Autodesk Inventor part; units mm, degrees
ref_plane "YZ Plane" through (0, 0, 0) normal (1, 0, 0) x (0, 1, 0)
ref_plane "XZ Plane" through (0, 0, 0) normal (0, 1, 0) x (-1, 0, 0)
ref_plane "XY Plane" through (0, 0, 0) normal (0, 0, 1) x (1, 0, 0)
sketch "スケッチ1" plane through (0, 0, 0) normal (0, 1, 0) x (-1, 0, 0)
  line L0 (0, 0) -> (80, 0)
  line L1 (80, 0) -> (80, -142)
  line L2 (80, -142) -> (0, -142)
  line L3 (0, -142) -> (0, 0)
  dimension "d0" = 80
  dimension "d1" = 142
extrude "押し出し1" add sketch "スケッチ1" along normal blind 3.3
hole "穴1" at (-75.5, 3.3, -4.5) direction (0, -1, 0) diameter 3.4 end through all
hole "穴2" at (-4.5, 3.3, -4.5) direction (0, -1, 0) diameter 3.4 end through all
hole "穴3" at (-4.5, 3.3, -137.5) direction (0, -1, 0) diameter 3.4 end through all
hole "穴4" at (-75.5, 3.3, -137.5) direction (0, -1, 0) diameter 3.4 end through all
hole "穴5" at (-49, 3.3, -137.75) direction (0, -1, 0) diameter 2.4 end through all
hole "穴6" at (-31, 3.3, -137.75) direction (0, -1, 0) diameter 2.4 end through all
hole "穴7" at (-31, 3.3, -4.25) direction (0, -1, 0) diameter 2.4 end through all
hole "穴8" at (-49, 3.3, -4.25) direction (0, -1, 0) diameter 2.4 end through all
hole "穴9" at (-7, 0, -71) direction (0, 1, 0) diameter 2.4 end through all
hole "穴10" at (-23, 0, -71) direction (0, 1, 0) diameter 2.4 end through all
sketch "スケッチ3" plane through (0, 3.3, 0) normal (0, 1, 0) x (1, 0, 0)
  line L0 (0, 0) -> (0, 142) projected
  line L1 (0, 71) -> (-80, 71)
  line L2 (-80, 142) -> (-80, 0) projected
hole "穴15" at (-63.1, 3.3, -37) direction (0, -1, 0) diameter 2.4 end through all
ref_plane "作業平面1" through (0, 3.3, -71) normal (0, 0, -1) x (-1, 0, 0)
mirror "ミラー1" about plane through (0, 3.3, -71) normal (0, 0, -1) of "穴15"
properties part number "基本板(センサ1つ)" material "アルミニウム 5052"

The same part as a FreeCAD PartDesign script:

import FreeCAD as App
import Part
import Sketcher


def add_polygon(sketch, points):
    """Adds a closed chain of lines whose ends are joined by coincident constraints."""
    first, n = sketch.GeometryCount, len(points)
    for a, b in zip(points, points[1:] + points[:1]):
        sketch.addGeometry(Part.LineSegment(App.Vector(*a, 0), App.Vector(*b, 0)), False)
    for i in range(n):
        sketch.addConstraint(Sketcher.Constraint("Coincident", first + i, 2, first + (i + 1) % n, 1))

doc = App.newDocument("Part")
params = doc.addObject("Spreadsheet::Sheet", "Params")
for row, (alias, value) in enumerate([
    ("sketch1_width", "80 mm"),
    ("sketch1_height", "142 mm"),
    ("pad1_length", "3.3 mm"),
    ("sketch2_diameter", "3.4 mm"),
    ("hole_diameter", "3.4 mm"),
    ("sketch3_diameter", "3.4 mm"),
    ("hole2_diameter", "3.4 mm"),
    ("sketch4_diameter", "3.4 mm"),
    ("hole3_diameter", "3.4 mm"),
    ("sketch5_diameter", "3.4 mm"),
    ("hole4_diameter", "3.4 mm"),
    ("sketch6_diameter", "2.4 mm"),
    ("hole5_diameter", "2.4 mm"),
    ("sketch7_diameter", "2.4 mm"),
    ("hole6_diameter", "2.4 mm"),
    ("sketch8_diameter", "2.4 mm"),
    ("hole7_diameter", "2.4 mm"),
    ("sketch9_diameter", "2.4 mm"),
    ("hole8_diameter", "2.4 mm"),
    ("sketch10_diameter", "2.4 mm"),
    ("hole9_diameter", "2.4 mm"),
    ("sketch11_diameter", "2.4 mm"),
    ("hole10_diameter", "2.4 mm"),
    ("sketch12_diameter", "2.4 mm"),
    ("hole11_diameter", "2.4 mm"),
], start=1):
    params.set(f"A{row}", alias)
    params.set(f"B{row}", "=" + value)
    params.setAlias(f"B{row}", alias)

body = doc.addObject("PartDesign::Body", "Body")

sketch1 = body.newObject("Sketcher::SketchObject", "Sketch")
sketch1.AttachmentSupport = (doc.getObject("XZ_Plane"), [""])
sketch1.MapMode = "FlatFace"
add_polygon(sketch1, [(-80, 0), (0, 0), (0, -142), (-80, -142)])
sketch1.addConstraint([
    Sketcher.Constraint("Horizontal", 0),
    Sketcher.Constraint("Vertical", 1),
    Sketcher.Constraint("Horizontal", 2),
    Sketcher.Constraint("Vertical", 3),
    Sketcher.Constraint("Coincident", 0, 2, -1, 1),
    Sketcher.Constraint("DistanceX", 0, 1, 0, 2, 80.0),
    Sketcher.Constraint("DistanceY", 1, 2, 1, 1, 142.0),
])
sketch1.setExpression("Constraints[9]", "Params.sketch1_width")
sketch1.setExpression("Constraints[10]", "Params.sketch1_height")
pad1 = body.newObject("PartDesign::Pad", "Pad")
pad1.Profile = sketch1
pad1.setExpression("Length", "Params.pad1_length")
pad1.Reversed = True

sketch2 = body.newObject("Sketcher::SketchObject", "Sketch001")
sketch2.AttachmentSupport = (doc.getObject("XZ_Plane"), [""])
sketch2.MapMode = "FlatFace"
sketch2.AttachmentOffset = App.Placement(App.Vector(0, 0, -3.3), App.Rotation())
sketch2.addGeometry(Part.Circle(App.Vector(-75.5, -4.5, 0), App.Vector(0, 0, 1), 1.7), False)
sketch2.addConstraint([
    Sketcher.Constraint("Diameter", 0, 3.4),
    Sketcher.Constraint("DistanceX", 0, 3, -1, 1, 75.5),
    Sketcher.Constraint("DistanceY", 0, 3, -1, 1, 4.5),
])
sketch2.setExpression("Constraints[0]", "Params.sketch2_diameter")
doc.recompute()
hole = body.newObject("PartDesign::Hole", "Hole")
hole.Profile = sketch2
hole.ThreadType = "None"
hole.setExpression("Diameter", "Params.hole_diameter")
hole.DepthType = "ThroughAll"
hole.Reversed = True

sketch3 = body.newObject("Sketcher::SketchObject", "Sketch002")
sketch3.AttachmentSupport = (doc.getObject("XZ_Plane"), [""])
sketch3.MapMode = "FlatFace"
sketch3.AttachmentOffset = App.Placement(App.Vector(0, 0, -3.3), App.Rotation())
sketch3.addGeometry(Part.Circle(App.Vector(-4.5, -4.5, 0), App.Vector(0, 0, 1), 1.7), False)
sketch3.addConstraint([
    Sketcher.Constraint("Diameter", 0, 3.4),
    Sketcher.Constraint("DistanceX", 0, 3, -1, 1, 4.5),
    Sketcher.Constraint("DistanceY", 0, 3, -1, 1, 4.5),
])
sketch3.setExpression("Constraints[0]", "Params.sketch3_diameter")
doc.recompute()
hole2 = body.newObject("PartDesign::Hole", "Hole001")
hole2.Profile = sketch3
hole2.ThreadType = "None"
hole2.setExpression("Diameter", "Params.hole2_diameter")
hole2.DepthType = "ThroughAll"
hole2.Reversed = True

sketch4 = body.newObject("Sketcher::SketchObject", "Sketch003")
sketch4.AttachmentSupport = (doc.getObject("XZ_Plane"), [""])
sketch4.MapMode = "FlatFace"
sketch4.AttachmentOffset = App.Placement(App.Vector(0, 0, -3.3), App.Rotation())
sketch4.addGeometry(Part.Circle(App.Vector(-4.5, -137.5, 0), App.Vector(0, 0, 1), 1.7), False)
sketch4.addConstraint([
    Sketcher.Constraint("Diameter", 0, 3.4),
    Sketcher.Constraint("DistanceX", 0, 3, -1, 1, 4.5),
    Sketcher.Constraint("DistanceY", 0, 3, -1, 1, 137.5),
])
sketch4.setExpression("Constraints[0]", "Params.sketch4_diameter")
doc.recompute()
hole3 = body.newObject("PartDesign::Hole", "Hole002")
hole3.Profile = sketch4
hole3.ThreadType = "None"
hole3.setExpression("Diameter", "Params.hole3_diameter")
hole3.DepthType = "ThroughAll"
hole3.Reversed = True

sketch5 = body.newObject("Sketcher::SketchObject", "Sketch004")
sketch5.AttachmentSupport = (doc.getObject("XZ_Plane"), [""])
sketch5.MapMode = "FlatFace"
sketch5.AttachmentOffset = App.Placement(App.Vector(0, 0, -3.3), App.Rotation())
sketch5.addGeometry(Part.Circle(App.Vector(-75.5, -137.5, 0), App.Vector(0, 0, 1), 1.7), False)
sketch5.addConstraint([
    Sketcher.Constraint("Diameter", 0, 3.4),
    Sketcher.Constraint("DistanceX", 0, 3, -1, 1, 75.5),
    Sketcher.Constraint("DistanceY", 0, 3, -1, 1, 137.5),
])
sketch5.setExpression("Constraints[0]", "Params.sketch5_diameter")
doc.recompute()
hole4 = body.newObject("PartDesign::Hole", "Hole003")
hole4.Profile = sketch5
hole4.ThreadType = "None"
hole4.setExpression("Diameter", "Params.hole4_diameter")
hole4.DepthType = "ThroughAll"
hole4.Reversed = True

sketch6 = body.newObject("Sketcher::SketchObject", "Sketch005")
sketch6.AttachmentSupport = (doc.getObject("XZ_Plane"), [""])
sketch6.MapMode = "FlatFace"
sketch6.AttachmentOffset = App.Placement(App.Vector(0, 0, -3.3), App.Rotation())
sketch6.addGeometry(Part.Circle(App.Vector(-49, -137.75, 0), App.Vector(0, 0, 1), 1.2), False)
sketch6.addConstraint([
    Sketcher.Constraint("Diameter", 0, 2.4),
    Sketcher.Constraint("DistanceX", 0, 3, -1, 1, 49.0),
    Sketcher.Constraint("DistanceY", 0, 3, -1, 1, 137.75),
])
sketch6.setExpression("Constraints[0]", "Params.sketch6_diameter")
doc.recompute()
hole5 = body.newObject("PartDesign::Hole", "Hole004")
hole5.Profile = sketch6
hole5.ThreadType = "None"
hole5.setExpression("Diameter", "Params.hole5_diameter")
hole5.DepthType = "ThroughAll"
hole5.Reversed = True

sketch7 = body.newObject("Sketcher::SketchObject", "Sketch006")
sketch7.AttachmentSupport = (doc.getObject("XZ_Plane"), [""])
sketch7.MapMode = "FlatFace"
sketch7.AttachmentOffset = App.Placement(App.Vector(0, 0, -3.3), App.Rotation())
sketch7.addGeometry(Part.Circle(App.Vector(-31, -137.75, 0), App.Vector(0, 0, 1), 1.2), False)
sketch7.addConstraint([
    Sketcher.Constraint("Diameter", 0, 2.4),
    Sketcher.Constraint("DistanceX", 0, 3, -1, 1, 31.0),
    Sketcher.Constraint("DistanceY", 0, 3, -1, 1, 137.75),
])
sketch7.setExpression("Constraints[0]", "Params.sketch7_diameter")
doc.recompute()
hole6 = body.newObject("PartDesign::Hole", "Hole005")
hole6.Profile = sketch7
hole6.ThreadType = "None"
hole6.setExpression("Diameter", "Params.hole6_diameter")
hole6.DepthType = "ThroughAll"
hole6.Reversed = True

sketch8 = body.newObject("Sketcher::SketchObject", "Sketch007")
sketch8.AttachmentSupport = (doc.getObject("XZ_Plane"), [""])
sketch8.MapMode = "FlatFace"
sketch8.AttachmentOffset = App.Placement(App.Vector(0, 0, -3.3), App.Rotation())
sketch8.addGeometry(Part.Circle(App.Vector(-31, -4.25, 0), App.Vector(0, 0, 1), 1.2), False)
sketch8.addConstraint([
    Sketcher.Constraint("Diameter", 0, 2.4),
    Sketcher.Constraint("DistanceX", 0, 3, -1, 1, 31.0),
    Sketcher.Constraint("DistanceY", 0, 3, -1, 1, 4.25),
])
sketch8.setExpression("Constraints[0]", "Params.sketch8_diameter")
doc.recompute()
hole7 = body.newObject("PartDesign::Hole", "Hole006")
hole7.Profile = sketch8
hole7.ThreadType = "None"
hole7.setExpression("Diameter", "Params.hole7_diameter")
hole7.DepthType = "ThroughAll"
hole7.Reversed = True

sketch9 = body.newObject("Sketcher::SketchObject", "Sketch008")
sketch9.AttachmentSupport = (doc.getObject("XZ_Plane"), [""])
sketch9.MapMode = "FlatFace"
sketch9.AttachmentOffset = App.Placement(App.Vector(0, 0, -3.3), App.Rotation())
sketch9.addGeometry(Part.Circle(App.Vector(-49, -4.25, 0), App.Vector(0, 0, 1), 1.2), False)
sketch9.addConstraint([
    Sketcher.Constraint("Diameter", 0, 2.4),
    Sketcher.Constraint("DistanceX", 0, 3, -1, 1, 49.0),
    Sketcher.Constraint("DistanceY", 0, 3, -1, 1, 4.25),
])
sketch9.setExpression("Constraints[0]", "Params.sketch9_diameter")
doc.recompute()
hole8 = body.newObject("PartDesign::Hole", "Hole007")
hole8.Profile = sketch9
hole8.ThreadType = "None"
hole8.setExpression("Diameter", "Params.hole8_diameter")
hole8.DepthType = "ThroughAll"
hole8.Reversed = True

sketch10 = body.newObject("Sketcher::SketchObject", "Sketch009")
sketch10.AttachmentSupport = (doc.getObject("XZ_Plane"), [""])
sketch10.MapMode = "FlatFace"
sketch10.addGeometry(Part.Circle(App.Vector(-7, -71, 0), App.Vector(0, 0, 1), 1.2), False)
sketch10.addConstraint([
    Sketcher.Constraint("Diameter", 0, 2.4),
    Sketcher.Constraint("DistanceX", 0, 3, -1, 1, 7.0),
    Sketcher.Constraint("DistanceY", 0, 3, -1, 1, 71.0),
])
sketch10.setExpression("Constraints[0]", "Params.sketch10_diameter")
doc.recompute()
hole9 = body.newObject("PartDesign::Hole", "Hole008")
hole9.Profile = sketch10
hole9.ThreadType = "None"
hole9.setExpression("Diameter", "Params.hole9_diameter")
hole9.DepthType = "ThroughAll"

sketch11 = body.newObject("Sketcher::SketchObject", "Sketch010")
sketch11.AttachmentSupport = (doc.getObject("XZ_Plane"), [""])
sketch11.MapMode = "FlatFace"
sketch11.addGeometry(Part.Circle(App.Vector(-23, -71, 0), App.Vector(0, 0, 1), 1.2), False)
sketch11.addConstraint([
    Sketcher.Constraint("Diameter", 0, 2.4),
    Sketcher.Constraint("DistanceX", 0, 3, -1, 1, 23.0),
    Sketcher.Constraint("DistanceY", 0, 3, -1, 1, 71.0),
])
sketch11.setExpression("Constraints[0]", "Params.sketch11_diameter")
doc.recompute()
hole10 = body.newObject("PartDesign::Hole", "Hole009")
hole10.Profile = sketch11
hole10.ThreadType = "None"
hole10.setExpression("Diameter", "Params.hole10_diameter")
hole10.DepthType = "ThroughAll"

sketch12 = body.newObject("Sketcher::SketchObject", "Sketch011")
sketch12.AttachmentSupport = (doc.getObject("XZ_Plane"), [""])
sketch12.MapMode = "FlatFace"
sketch12.AttachmentOffset = App.Placement(App.Vector(0, 0, -3.3), App.Rotation())
sketch12.addGeometry(Part.Circle(App.Vector(-63.1, -37, 0), App.Vector(0, 0, 1), 1.2), False)
sketch12.addConstraint([
    Sketcher.Constraint("Diameter", 0, 2.4),
    Sketcher.Constraint("DistanceY", 0, 3, -1, 1, 37.0),
    Sketcher.Constraint("DistanceX", 0, 3, -1, 1, 63.1),
])
sketch12.setExpression("Constraints[0]", "Params.sketch12_diameter")
doc.recompute()
hole11 = body.newObject("PartDesign::Hole", "Hole010")
hole11.Profile = sketch12
hole11.ThreadType = "None"
hole11.setExpression("Diameter", "Params.hole11_diameter")
hole11.DepthType = "ThroughAll"
hole11.Reversed = True
doc.recompute()

datumplane = body.newObject("PartDesign::Plane", "DatumPlane")
datumplane.AttachmentSupport = (doc.getObject("XY_Plane"), [""])
datumplane.MapMode = "FlatFace"
datumplane.AttachmentOffset = App.Placement(App.Vector(0, 0, -71), App.Rotation())
mirrored = body.newObject("PartDesign::Mirrored", "Mirrored")
mirrored.Originals = [hole11]
mirrored.MirrorPlane = (datumplane, [""])
body.Tip = mirrored

doc.recompute()
